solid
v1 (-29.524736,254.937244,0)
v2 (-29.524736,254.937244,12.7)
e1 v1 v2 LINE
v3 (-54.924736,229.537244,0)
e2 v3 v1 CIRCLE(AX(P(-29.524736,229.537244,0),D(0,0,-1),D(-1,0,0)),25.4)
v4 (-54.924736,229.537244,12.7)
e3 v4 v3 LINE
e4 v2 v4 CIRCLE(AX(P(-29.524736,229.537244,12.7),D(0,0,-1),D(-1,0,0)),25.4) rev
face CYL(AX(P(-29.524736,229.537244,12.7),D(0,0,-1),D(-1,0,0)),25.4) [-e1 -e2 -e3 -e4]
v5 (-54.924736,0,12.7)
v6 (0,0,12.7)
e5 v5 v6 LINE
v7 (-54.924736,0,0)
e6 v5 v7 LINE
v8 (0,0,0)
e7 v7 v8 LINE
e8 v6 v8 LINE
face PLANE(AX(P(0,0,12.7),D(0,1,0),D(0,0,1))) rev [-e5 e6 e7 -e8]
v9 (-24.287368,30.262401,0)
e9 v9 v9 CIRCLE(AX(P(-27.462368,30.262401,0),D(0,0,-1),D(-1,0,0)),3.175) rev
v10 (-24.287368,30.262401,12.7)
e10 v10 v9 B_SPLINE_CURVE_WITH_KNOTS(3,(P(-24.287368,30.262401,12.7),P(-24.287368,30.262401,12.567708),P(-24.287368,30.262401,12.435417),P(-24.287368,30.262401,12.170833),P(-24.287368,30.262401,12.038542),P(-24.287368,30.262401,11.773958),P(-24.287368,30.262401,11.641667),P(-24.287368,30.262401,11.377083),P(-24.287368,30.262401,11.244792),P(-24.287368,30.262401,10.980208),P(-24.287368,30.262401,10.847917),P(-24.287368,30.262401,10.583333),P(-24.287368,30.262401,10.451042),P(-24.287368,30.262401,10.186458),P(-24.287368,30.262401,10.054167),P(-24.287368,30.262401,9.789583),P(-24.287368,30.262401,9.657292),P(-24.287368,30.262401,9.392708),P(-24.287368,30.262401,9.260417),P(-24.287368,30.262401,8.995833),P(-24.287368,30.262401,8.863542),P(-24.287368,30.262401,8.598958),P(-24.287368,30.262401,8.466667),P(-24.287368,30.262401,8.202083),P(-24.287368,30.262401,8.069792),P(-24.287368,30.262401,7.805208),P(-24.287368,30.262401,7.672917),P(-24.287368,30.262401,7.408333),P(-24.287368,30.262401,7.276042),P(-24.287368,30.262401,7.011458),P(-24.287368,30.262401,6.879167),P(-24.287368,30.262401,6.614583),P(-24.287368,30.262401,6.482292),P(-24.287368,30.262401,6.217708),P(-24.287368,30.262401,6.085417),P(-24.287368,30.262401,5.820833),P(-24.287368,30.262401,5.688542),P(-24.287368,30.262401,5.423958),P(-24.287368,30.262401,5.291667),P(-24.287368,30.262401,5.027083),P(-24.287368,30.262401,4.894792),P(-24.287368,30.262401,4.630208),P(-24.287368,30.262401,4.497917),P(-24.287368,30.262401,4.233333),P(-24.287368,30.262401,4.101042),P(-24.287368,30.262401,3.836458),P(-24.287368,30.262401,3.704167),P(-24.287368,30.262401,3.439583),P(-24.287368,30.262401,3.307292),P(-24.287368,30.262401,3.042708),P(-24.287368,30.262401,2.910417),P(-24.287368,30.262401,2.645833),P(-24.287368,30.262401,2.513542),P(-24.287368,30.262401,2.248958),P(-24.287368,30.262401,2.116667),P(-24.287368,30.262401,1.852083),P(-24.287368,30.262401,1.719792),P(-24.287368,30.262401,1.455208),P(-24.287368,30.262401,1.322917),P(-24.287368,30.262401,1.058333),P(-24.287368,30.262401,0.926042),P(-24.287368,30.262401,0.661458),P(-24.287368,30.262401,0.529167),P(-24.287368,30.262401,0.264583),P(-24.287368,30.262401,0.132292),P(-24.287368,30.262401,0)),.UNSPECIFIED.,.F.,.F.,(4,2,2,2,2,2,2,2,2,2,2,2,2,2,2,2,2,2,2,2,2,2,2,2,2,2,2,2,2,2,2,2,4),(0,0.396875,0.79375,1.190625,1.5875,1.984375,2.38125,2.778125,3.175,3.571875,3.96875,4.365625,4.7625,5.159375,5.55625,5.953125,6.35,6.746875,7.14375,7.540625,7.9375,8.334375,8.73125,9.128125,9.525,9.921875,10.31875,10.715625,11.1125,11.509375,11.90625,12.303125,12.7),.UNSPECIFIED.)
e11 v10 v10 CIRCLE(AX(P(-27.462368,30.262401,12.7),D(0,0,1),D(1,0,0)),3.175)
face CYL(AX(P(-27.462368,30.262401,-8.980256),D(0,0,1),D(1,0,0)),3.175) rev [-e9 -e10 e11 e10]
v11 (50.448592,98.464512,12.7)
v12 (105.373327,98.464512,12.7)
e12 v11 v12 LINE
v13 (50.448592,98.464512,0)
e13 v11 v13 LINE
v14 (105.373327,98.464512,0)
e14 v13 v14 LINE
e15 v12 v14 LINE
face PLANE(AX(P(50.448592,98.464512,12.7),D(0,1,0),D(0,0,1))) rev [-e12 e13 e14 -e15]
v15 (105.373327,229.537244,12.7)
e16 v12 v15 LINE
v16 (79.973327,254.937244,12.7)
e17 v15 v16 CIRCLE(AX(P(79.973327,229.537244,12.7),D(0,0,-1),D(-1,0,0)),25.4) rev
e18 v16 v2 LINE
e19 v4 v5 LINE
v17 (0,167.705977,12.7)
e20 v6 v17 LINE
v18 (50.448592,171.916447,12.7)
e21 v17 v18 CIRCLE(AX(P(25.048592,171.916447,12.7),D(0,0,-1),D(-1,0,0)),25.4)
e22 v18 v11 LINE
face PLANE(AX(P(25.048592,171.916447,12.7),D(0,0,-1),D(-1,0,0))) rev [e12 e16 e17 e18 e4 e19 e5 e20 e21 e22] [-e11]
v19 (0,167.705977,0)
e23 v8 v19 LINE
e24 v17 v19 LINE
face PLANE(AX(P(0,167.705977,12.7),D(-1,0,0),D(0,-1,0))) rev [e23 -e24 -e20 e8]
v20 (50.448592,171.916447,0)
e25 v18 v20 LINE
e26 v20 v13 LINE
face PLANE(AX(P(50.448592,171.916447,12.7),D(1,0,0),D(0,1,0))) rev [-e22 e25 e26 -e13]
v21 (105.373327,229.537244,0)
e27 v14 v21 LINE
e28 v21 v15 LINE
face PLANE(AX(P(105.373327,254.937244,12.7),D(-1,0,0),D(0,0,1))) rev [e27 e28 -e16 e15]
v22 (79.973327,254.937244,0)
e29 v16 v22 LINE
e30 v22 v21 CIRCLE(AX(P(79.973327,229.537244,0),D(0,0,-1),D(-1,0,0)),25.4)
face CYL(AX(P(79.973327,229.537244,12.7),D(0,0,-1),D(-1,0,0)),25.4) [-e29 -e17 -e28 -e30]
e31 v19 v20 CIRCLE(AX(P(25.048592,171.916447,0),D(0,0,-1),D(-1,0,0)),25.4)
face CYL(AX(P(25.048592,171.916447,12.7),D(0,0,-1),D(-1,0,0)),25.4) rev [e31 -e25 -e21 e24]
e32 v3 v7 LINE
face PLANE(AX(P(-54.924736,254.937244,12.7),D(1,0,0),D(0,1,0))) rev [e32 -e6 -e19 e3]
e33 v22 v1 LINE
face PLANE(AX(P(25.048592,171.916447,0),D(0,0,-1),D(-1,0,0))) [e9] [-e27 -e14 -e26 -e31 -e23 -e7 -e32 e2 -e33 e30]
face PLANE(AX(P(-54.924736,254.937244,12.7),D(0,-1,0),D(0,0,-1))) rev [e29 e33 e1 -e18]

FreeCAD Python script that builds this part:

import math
import FreeCAD as App
import Part
import Sketcher

V = App.Vector
Q = App.Units.Quantity


def edges_at(feature, points):
    """Names of the edges that pass closest to the given points."""
    edges = feature.Shape.Edges
    near = lambda p: min(range(len(edges)), key=lambda i: edges[i].distToShape(Part.Vertex(*p))[0])
    return sorted({f"Edge{near(p) + 1}" for p in points})

doc = App.newDocument("Part")
params = doc.addObject("Spreadsheet::Sheet", "Params")
for row, (alias, value) in enumerate([
    ("sketch1_radius", "1 in"),
    ("pad1_length", "0.5 in"),
    ("fillet_radius", "1 in"),
    ("fillet2_radius", "1 in"),
    ("sketch2_diameter", "0.25 in"),
    ("pocket1_length", "0.5 in"),
], start=1):
    params.set(f"A{row}", alias)
    params.set(f"B{row}", "=" + value)
    params.setAlias(f"B{row}", alias)

body = doc.addObject("PartDesign::Body", "Body")

# Sketch on XY plane
sketch1 = body.newObject("Sketcher::SketchObject", "Sketch")
sketch1.AttachmentSupport = (doc.getObject("XY_Plane"), [""])
sketch1.MapMode = "FlatFace"
sketch1.addGeometry(Part.LineSegment(V(0, 0, 0), V(0, 167.705977, 0)), False)
sketch1.addGeometry(Part.ArcOfCircle(Part.Circle(V(25.048592, 171.916447, 0), V(0, 0, 1), 25.4), math.radians(0), math.radians(189.541768)), False)
sketch1.addGeometry(Part.LineSegment(V(50.448592, 171.916447, 0), V(50.448592, 98.464512, 0)), False)
sketch1.addGeometry(Part.LineSegment(V(50.448592, 98.464512, 0), V(105.373327, 98.464512, 0)), False)
sketch1.addGeometry(Part.LineSegment(V(105.373327, 98.464512, 0), V(105.373327, 254.937244, 0)), False)
sketch1.addGeometry(Part.LineSegment(V(105.373327, 254.937244, 0), V(-54.924736, 254.937244, 0)), False)
sketch1.addGeometry(Part.LineSegment(V(-54.924736, 254.937244, 0), V(-54.924736, 0, 0)), False)
sketch1.addGeometry(Part.LineSegment(V(-54.924736, 0, 0), V(0, 0, 0)), False)
sketch1.addConstraint(Sketcher.Constraint("Coincident", 0, 2, 1, 2))
sketch1.addConstraint(Sketcher.Constraint("Tangent", 1, 1, 2, 1))
sketch1.addConstraint(Sketcher.Constraint("Coincident", 2, 2, 3, 1))
sketch1.addConstraint(Sketcher.Constraint("Coincident", 3, 2, 4, 1))
sketch1.addConstraint(Sketcher.Constraint("Coincident", 4, 2, 5, 1))
sketch1.addConstraint(Sketcher.Constraint("Coincident", 5, 2, 6, 1))
sketch1.addConstraint(Sketcher.Constraint("Coincident", 6, 2, 7, 1))
sketch1.addConstraint(Sketcher.Constraint("Coincident", 7, 2, 0, 1))
sketch1.addConstraint(Sketcher.Constraint("Vertical", 0))
sketch1.addConstraint(Sketcher.Constraint("Vertical", 2))
sketch1.addConstraint(Sketcher.Constraint("Horizontal", 3))
sketch1.addConstraint(Sketcher.Constraint("Vertical", 4))
sketch1.addConstraint(Sketcher.Constraint("Horizontal", 5))
sketch1.addConstraint(Sketcher.Constraint("Vertical", 6))
sketch1.addConstraint(Sketcher.Constraint("Horizontal", 7))
sketch1.addConstraint(Sketcher.Constraint("Coincident", 7, 2, -1, 1))
sketch1.addConstraint(Sketcher.Constraint("Equal", 3, 7))
sketch1.addConstraint(Sketcher.Constraint("Radius", 1, Q("1 in")))
sketch1.addConstraint(Sketcher.Constraint("DistanceY", 4, 1, 4, 2, 156.472732))
sketch1.addConstraint(Sketcher.Constraint("DistanceX", 3, 1, 3, 2, 54.924736))
sketch1.addConstraint(Sketcher.Constraint("DistanceX", 5, 2, 5, 1, 160.298063))
sketch1.addConstraint(Sketcher.Constraint("DistanceY", 0, 1, 0, 2, 167.705977))
sketch1.addConstraint(Sketcher.Constraint("DistanceY", 2, 2, 2, 1, 73.451935))
sketch1.setExpression("Constraints[17]", "Params.sketch1_radius")
pad1 = body.newObject("PartDesign::Pad", "Pad")
pad1.Profile = sketch1
pad1.setExpression("Length", "Params.pad1_length")
doc.recompute()

fillet = body.newObject("PartDesign::Fillet", "Fillet")
fillet.Base = (pad1, edges_at(pad1, [(-54.925, 254.937, 6.35)]))
fillet.setExpression("Radius", "Params.fillet_radius")
doc.recompute()

fillet2 = body.newObject("PartDesign::Fillet", "Fillet001")
fillet2.Base = (fillet, edges_at(fillet, [(105.373, 254.937, 6.35)]))
fillet2.setExpression("Radius", "Params.fillet2_radius")

# Sketch on XY plane
sketch2 = body.newObject("Sketcher::SketchObject", "Sketch001")
sketch2.AttachmentSupport = (doc.getObject("XY_Plane"), [""])
sketch2.MapMode = "FlatFace"
sketch2.AttachmentOffset = App.Placement(V(0, 0, 0.5 * 25.4), App.Rotation())
sketch2.addGeometry(Part.Circle(V(-27.462368, 30.262401, 0), V(0, 0, 1), 3.175), False)
sketch2.addConstraint(Sketcher.Constraint("Diameter", 0, Q("0.25 in")))
sketch2.addConstraint(Sketcher.Constraint("DistanceY", -1, 1, 0, 3, 30.262401))
sketch2.addConstraint(Sketcher.Constraint("DistanceX", 0, 3, -1, 1, 27.462368))
sketch2.setExpression("Constraints[0]", "Params.sketch2_diameter")
pocket1 = body.newObject("PartDesign::Pocket", "Pocket")
pocket1.Profile = sketch2
pocket1.setExpression("Length", "Params.pocket1_length")

doc.recompute()
